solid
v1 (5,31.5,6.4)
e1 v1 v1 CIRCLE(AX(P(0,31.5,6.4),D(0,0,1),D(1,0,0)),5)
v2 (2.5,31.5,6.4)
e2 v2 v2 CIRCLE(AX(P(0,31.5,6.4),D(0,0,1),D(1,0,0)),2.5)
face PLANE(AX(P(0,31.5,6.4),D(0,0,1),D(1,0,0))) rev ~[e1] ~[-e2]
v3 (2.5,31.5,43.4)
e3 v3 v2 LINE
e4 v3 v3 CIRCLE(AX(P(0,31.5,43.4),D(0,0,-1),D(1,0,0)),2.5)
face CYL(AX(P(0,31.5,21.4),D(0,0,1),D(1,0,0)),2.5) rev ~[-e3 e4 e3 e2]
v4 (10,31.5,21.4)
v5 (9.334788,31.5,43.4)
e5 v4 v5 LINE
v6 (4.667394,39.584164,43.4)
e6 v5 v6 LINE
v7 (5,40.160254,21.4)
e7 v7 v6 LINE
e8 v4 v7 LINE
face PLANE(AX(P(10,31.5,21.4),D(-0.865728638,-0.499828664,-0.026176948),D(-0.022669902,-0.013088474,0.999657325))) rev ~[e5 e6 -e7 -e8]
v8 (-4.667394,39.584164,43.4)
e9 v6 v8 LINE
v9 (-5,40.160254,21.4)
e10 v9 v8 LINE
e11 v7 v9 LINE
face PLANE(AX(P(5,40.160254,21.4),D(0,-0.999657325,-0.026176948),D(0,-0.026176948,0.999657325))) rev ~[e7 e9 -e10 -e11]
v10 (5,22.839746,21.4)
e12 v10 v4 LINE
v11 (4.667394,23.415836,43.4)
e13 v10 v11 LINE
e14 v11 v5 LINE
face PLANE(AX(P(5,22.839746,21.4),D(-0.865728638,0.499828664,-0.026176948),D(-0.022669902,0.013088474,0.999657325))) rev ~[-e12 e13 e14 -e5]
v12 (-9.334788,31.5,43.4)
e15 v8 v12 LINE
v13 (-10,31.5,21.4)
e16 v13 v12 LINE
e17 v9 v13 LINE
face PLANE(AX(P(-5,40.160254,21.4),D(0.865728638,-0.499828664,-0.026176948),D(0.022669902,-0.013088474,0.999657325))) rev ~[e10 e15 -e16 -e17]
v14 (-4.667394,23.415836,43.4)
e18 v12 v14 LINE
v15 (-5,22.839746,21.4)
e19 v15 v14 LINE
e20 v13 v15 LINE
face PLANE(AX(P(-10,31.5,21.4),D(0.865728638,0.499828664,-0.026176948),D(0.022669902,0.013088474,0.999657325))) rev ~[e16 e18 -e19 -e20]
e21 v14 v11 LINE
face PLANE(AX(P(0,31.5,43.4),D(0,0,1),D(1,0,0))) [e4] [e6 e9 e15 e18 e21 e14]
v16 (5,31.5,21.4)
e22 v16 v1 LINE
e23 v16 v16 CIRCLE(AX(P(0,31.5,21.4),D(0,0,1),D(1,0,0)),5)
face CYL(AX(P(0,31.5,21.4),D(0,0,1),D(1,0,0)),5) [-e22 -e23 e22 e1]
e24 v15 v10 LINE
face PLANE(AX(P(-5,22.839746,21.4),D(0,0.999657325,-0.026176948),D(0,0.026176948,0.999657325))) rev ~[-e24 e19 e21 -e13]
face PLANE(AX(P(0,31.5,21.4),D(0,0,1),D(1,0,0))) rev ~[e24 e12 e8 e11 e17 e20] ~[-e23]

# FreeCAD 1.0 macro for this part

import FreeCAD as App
import Part
import Sketcher
Q = App.Units.Quantity

doc = App.newDocument("Part")
params = doc.addObject("Spreadsheet::Sheet", "Params")
for row, (alias, value) in enumerate([
    ("sketch1_width", "10 mm"),
    ("sketch1_length", "10 mm"),
    ("pad1_length", "22 mm"),
    ("pad1_taper", "-1.5 deg"),
    ("sketch2_diameter", "5 mm"),
    ("pocket1_length", "69.506788 mm"),
    ("sketch3_diameter", "10 mm"),
    ("pad2_length", "15 mm"),
    ("sketch4_diameter", "5 mm"),
    ("pocket2_length", "25 mm"),
], start=1):
    params.set(f"A{row}", alias)
    params.set(f"B{row}", "=" + value)
    params.setAlias(f"B{row}", alias)

body = doc.addObject("PartDesign::Body", "Body")

sketch1 = doc.addObject("Sketcher::SketchObject", "Sketch")
body.addObject(sketch1)
sketch1.AttachmentSupport = (doc.XY_Plane, [""])
sketch1.MapMode = "FlatFace"
sketch1.addGeometry([
    Part.LineSegment(App.Vector(10, 0, 0), App.Vector(5, 8.660254, 0)),
    Part.LineSegment(App.Vector(5, 8.660254, 0), App.Vector(-5, 8.660254, 0)),
    Part.LineSegment(App.Vector(-5, 8.660254, 0), App.Vector(-10, 0, 0)),
    Part.LineSegment(App.Vector(-10, 0, 0), App.Vector(-5, -8.660254, 0)),
    Part.LineSegment(App.Vector(-5, -8.660254, 0), App.Vector(5, -8.660254, 0)),
    Part.LineSegment(App.Vector(5, -8.660254, 0), App.Vector(10, 0, 0)),
], False)
sketch1.addConstraint([
    Sketcher.Constraint("Coincident", 0, 2, 1, 1),
    Sketcher.Constraint("Coincident", 1, 2, 2, 1),
    Sketcher.Constraint("Coincident", 2, 2, 3, 1),
    Sketcher.Constraint("Coincident", 3, 2, 4, 1),
    Sketcher.Constraint("Coincident", 4, 2, 5, 1),
    Sketcher.Constraint("Coincident", 5, 2, 0, 1),
    Sketcher.Constraint("Horizontal", 1),
    Sketcher.Constraint("Horizontal", 4),
    Sketcher.Constraint("Symmetric", 0, 2, 3, 2, -1, 1),
    Sketcher.Constraint("Symmetric", 2, 2, 5, 2, -1, 1),
    Sketcher.Constraint("PointOnObject", 2, 2, -1),
    Sketcher.Constraint("Parallel", 2, 5),
    Sketcher.Constraint("Vertical", 1, 2, 3, 2),
    Sketcher.Constraint("DistanceX", 1, 2, 1, 1, 10.0),
    Sketcher.Constraint("Angle", 0, Q("120 deg")),
    Sketcher.Constraint("Distance", 0, 10.0),
])
sketch1.setExpression("Constraints[13]", "Params.sketch1_width")
sketch1.setExpression("Constraints[15]", "Params.sketch1_length")
pad1 = doc.addObject("PartDesign::Pad", "Pad")
body.addObject(pad1)
pad1.Profile = sketch1
pad1.setExpression("Length", "Params.pad1_length")
pad1.setExpression("TaperAngle", "Params.pad1_taper")

sketch2 = doc.addObject("Sketcher::SketchObject", "Sketch001")
body.addObject(sketch2)
sketch2.AttachmentSupport = (doc.XY_Plane, [""])
sketch2.MapMode = "FlatFace"
sketch2.addGeometry(Part.Circle(App.Vector(0, 0, 0), App.Vector(0, 0, 1), 2.5), False)
sketch2.addConstraint([
    Sketcher.Constraint("Coincident", 0, 3, -1, 1),
    Sketcher.Constraint("Diameter", 0, 5.0),
])
sketch2.setExpression("Constraints[1]", "Params.sketch2_diameter")
pocket1 = doc.addObject("PartDesign::Pocket", "Pocket")
body.addObject(pocket1)
pocket1.Profile = sketch2
pocket1.setExpression("Length", "Params.pocket1_length")
pocket1.Reversed = True

sketch3 = doc.addObject("Sketcher::SketchObject", "Sketch002")
body.addObject(sketch3)
sketch3.AttachmentSupport = (doc.XY_Plane, [""])
sketch3.MapMode = "FlatFace"
sketch3.addGeometry(Part.Circle(App.Vector(0, 0, 0), App.Vector(0, 0, 1), 5), False)
sketch3.addConstraint([
    Sketcher.Constraint("Coincident", 0, 3, -1, 1),
    Sketcher.Constraint("Diameter", 0, 10.0),
])
sketch3.setExpression("Constraints[1]", "Params.sketch3_diameter")
pad2 = doc.addObject("PartDesign::Pad", "Pad001")
body.addObject(pad2)
pad2.Profile = sketch3
pad2.setExpression("Length", "Params.pad2_length")
pad2.Reversed = True

sketch4 = doc.addObject("Sketcher::SketchObject", "Sketch003")
body.addObject(sketch4)
sketch4.AttachmentSupport = (doc.XY_Plane, [""])
sketch4.MapMode = "FlatFace"
sketch4.addGeometry(Part.Circle(App.Vector(0, 0, 0), App.Vector(0, 0, 1), 2.5), False)
sketch4.addConstraint([
    Sketcher.Constraint("Coincident", 0, 3, -1, 1),
    Sketcher.Constraint("Diameter", 0, 5.0),
])
sketch4.setExpression("Constraints[1]", "Params.sketch4_diameter")
pocket2 = doc.addObject("PartDesign::Pocket", "Pocket001")
body.addObject(pocket2)
pocket2.Profile = sketch4
pocket2.setExpression("Length", "Params.pocket2_length")
body2 = doc.addObject("PartDesign::Body", "Body001")
doc.recompute()

body.Placement = App.Placement(App.Vector(0, 31.5, 21.4), App.Rotation(App.Vector(0, 0, 1), 0))
boolean = doc.addObject("PartDesign::Boolean", "Boolean")
body2.addObject(boolean)
boolean.Type = "Fuse"
boolean.addObjects([body])

doc.recompute()
